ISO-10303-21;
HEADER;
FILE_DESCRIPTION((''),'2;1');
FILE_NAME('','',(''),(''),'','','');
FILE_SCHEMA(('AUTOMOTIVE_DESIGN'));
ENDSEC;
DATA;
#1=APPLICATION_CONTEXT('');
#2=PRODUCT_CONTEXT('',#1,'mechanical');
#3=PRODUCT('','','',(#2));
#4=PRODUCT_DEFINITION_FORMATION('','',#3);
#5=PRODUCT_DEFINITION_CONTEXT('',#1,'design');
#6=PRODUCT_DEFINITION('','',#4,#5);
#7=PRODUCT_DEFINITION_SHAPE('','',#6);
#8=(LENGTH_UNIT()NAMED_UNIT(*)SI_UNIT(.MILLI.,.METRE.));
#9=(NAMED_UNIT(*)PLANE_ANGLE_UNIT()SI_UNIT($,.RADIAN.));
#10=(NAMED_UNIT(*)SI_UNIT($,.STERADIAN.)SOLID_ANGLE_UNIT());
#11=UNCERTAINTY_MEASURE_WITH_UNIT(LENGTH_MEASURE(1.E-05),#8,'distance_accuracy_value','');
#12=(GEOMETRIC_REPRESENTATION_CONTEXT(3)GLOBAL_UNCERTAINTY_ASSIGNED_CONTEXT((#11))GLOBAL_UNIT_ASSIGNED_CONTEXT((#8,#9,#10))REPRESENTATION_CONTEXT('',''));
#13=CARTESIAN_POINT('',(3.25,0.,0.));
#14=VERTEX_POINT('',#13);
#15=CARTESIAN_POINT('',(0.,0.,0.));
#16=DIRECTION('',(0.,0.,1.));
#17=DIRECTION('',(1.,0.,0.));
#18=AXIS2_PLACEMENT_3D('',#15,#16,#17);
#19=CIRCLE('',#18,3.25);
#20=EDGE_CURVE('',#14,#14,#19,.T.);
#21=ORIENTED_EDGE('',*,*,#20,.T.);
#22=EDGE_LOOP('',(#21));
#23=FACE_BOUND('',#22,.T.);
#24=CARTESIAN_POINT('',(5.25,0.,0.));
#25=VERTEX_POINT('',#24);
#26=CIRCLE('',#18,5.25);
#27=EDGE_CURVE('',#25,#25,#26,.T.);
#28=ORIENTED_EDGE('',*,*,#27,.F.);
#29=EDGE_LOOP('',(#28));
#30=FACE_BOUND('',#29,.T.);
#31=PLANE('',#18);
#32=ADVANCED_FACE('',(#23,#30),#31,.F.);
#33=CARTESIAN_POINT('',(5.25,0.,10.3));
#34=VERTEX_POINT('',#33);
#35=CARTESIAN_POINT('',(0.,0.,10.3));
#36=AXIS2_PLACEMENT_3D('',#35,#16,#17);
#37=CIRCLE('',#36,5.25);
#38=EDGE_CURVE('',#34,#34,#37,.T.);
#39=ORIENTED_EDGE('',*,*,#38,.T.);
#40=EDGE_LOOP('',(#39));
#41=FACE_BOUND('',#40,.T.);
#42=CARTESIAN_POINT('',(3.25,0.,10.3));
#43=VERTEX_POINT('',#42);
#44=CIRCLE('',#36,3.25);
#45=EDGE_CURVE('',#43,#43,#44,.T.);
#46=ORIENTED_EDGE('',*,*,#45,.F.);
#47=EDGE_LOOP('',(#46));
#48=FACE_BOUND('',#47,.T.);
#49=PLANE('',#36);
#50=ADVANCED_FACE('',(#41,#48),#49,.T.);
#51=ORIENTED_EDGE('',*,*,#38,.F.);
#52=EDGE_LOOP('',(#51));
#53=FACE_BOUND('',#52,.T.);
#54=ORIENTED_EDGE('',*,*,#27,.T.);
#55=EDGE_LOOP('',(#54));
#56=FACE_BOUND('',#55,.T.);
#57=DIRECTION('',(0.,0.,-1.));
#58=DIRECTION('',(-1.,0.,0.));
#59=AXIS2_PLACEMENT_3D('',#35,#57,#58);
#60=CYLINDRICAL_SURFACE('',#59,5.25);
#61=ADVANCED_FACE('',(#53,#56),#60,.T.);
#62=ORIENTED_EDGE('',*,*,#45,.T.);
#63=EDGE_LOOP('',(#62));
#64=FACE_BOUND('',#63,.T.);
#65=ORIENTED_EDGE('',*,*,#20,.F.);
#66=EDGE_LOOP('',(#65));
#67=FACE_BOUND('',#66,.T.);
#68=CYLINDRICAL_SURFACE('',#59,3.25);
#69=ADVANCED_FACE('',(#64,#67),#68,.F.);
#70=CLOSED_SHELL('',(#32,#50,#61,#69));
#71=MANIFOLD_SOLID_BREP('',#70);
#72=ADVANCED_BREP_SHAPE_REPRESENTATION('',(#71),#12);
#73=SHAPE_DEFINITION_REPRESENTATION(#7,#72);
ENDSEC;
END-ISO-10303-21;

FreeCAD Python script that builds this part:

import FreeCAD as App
import Part
import Sketcher

V = App.Vector

doc = App.newDocument("Part")
body = doc.addObject("PartDesign::Body", "Body")

# Sketch on XY plane
sketch1 = body.newObject("Sketcher::SketchObject", "Sketch")
sketch1.AttachmentSupport = (doc.getObject("XY_Plane"), [""])
sketch1.MapMode = "FlatFace"
sketch1.addGeometry([
    Part.Circle(V(0, 0, 0), V(0, 0, 1), 5.2),
    Part.Circle(V(0, 0, 0), V(0, 0, 1), 3.2),
], False)
sketch1.addConstraint([
    Sketcher.Constraint("Coincident", 0, 3, -1, 1),
    Sketcher.Constraint("Coincident", 1, 3, -1, 1),
    Sketcher.Constraint("Diameter", 0, 10.5),
    Sketcher.Constraint("Diameter", 1, 6.5),
])
pad1 = body.newObject("PartDesign::Pad", "Pad")
pad1.Profile = sketch1
pad1.Length = 10.3

doc.recompute()
